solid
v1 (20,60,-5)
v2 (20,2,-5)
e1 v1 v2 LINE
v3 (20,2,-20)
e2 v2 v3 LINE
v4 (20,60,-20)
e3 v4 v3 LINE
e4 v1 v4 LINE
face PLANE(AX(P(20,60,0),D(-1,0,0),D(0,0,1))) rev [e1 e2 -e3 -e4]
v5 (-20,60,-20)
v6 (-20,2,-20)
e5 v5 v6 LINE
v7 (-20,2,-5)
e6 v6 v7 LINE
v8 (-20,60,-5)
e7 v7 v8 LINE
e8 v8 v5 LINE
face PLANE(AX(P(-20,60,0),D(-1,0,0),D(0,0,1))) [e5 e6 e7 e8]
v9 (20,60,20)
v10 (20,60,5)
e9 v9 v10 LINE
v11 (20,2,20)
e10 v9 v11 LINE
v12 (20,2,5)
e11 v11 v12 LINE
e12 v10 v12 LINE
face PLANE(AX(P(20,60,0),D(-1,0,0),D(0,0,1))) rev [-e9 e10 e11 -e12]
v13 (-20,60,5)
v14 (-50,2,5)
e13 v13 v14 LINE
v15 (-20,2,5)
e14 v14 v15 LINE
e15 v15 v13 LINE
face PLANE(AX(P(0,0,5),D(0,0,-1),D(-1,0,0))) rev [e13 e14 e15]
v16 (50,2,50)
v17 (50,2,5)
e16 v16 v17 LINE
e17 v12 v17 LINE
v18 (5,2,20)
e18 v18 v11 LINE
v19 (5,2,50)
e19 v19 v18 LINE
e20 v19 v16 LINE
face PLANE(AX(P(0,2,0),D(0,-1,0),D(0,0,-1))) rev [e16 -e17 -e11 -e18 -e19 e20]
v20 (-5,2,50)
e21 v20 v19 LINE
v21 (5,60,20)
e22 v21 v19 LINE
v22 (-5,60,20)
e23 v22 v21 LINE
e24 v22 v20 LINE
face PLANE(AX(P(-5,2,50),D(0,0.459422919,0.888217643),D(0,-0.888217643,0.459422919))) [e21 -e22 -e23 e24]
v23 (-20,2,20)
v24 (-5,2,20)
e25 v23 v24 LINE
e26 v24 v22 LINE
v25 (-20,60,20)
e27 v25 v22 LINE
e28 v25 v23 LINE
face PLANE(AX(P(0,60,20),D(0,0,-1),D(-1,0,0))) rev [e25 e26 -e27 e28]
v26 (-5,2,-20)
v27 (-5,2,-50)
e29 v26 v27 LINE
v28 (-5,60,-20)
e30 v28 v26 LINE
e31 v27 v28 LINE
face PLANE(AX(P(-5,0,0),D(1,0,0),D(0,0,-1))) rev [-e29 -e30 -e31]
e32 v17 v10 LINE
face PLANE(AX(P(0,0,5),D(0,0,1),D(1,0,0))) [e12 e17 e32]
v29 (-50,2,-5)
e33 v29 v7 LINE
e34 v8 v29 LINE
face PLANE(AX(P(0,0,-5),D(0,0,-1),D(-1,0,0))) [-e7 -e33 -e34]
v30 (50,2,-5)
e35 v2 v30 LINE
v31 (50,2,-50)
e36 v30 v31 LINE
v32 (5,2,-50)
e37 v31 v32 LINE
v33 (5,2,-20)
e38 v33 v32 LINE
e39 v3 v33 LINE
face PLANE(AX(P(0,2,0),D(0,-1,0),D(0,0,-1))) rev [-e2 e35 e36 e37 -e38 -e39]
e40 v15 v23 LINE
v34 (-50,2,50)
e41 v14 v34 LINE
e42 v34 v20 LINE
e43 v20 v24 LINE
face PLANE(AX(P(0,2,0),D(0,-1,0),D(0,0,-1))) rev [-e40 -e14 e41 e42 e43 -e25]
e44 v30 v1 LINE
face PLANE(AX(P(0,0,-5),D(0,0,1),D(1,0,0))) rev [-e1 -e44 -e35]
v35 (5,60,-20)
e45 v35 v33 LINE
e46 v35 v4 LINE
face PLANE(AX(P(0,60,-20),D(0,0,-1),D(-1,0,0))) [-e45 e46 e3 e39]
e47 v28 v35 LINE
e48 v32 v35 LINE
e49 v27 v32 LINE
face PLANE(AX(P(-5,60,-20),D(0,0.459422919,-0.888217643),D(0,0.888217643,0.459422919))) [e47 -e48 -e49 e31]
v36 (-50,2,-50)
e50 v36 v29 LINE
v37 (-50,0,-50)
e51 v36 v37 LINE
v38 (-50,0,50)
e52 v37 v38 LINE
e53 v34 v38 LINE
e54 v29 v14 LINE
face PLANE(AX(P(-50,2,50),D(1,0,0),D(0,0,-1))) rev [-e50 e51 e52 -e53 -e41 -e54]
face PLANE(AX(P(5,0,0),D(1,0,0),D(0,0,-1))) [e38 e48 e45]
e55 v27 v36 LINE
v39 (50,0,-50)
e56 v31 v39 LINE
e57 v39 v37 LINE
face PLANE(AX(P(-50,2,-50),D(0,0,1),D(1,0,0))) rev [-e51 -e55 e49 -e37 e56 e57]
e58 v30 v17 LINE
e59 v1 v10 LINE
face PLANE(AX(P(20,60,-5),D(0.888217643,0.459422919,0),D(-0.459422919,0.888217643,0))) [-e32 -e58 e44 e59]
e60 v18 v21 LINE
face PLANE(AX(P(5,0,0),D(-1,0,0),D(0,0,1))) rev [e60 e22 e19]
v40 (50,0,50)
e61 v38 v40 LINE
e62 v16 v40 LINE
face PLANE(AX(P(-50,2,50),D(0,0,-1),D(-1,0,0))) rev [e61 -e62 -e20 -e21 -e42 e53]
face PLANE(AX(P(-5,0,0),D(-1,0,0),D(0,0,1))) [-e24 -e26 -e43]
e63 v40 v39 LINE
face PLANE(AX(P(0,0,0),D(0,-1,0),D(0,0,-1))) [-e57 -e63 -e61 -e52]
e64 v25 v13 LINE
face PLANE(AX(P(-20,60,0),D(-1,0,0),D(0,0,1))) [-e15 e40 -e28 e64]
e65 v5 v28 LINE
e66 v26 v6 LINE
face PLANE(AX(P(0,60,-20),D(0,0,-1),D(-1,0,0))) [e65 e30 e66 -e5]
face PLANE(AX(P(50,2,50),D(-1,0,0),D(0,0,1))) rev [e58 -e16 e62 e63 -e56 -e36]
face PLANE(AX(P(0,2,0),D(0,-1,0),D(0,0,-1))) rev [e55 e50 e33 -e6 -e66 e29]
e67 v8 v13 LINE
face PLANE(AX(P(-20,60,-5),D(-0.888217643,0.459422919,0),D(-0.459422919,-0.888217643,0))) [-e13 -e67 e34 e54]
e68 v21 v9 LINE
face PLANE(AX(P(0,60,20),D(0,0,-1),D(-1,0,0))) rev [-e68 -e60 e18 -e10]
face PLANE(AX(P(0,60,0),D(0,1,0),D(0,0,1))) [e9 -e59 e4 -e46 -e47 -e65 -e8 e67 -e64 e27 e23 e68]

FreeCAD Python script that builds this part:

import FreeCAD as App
import Part
import Sketcher
Q = App.Units.Quantity


def add_polygon(sketch, points):
    """Adds a closed chain of lines whose ends are joined by coincident constraints."""
    first, n = sketch.GeometryCount, len(points)
    for a, b in zip(points, points[1:] + points[:1]):
        sketch.addGeometry(Part.LineSegment(App.Vector(*a, 0), App.Vector(*b, 0)), False)
    for i in range(n):
        sketch.addConstraint(Sketcher.Constraint("Coincident", first + i, 2, first + (i + 1) % n, 1))

doc = App.newDocument("Part")
body = doc.addObject("PartDesign::Body", "Body")

# Sketch on XZ plane
sketch1 = doc.addObject("Sketcher::SketchObject", "Sketch")
body.addObject(sketch1)
sketch1.AttachmentSupport = (doc.XZ_Plane, [""])
sketch1.MapMode = "FlatFace"
add_polygon(sketch1, [(-50, -50), (-50, 50), (50, 50), (50, -50)])  # lines 0-3
add_polygon(sketch1, [(20, 20), (-20, 20), (-20, -20), (20, -20)])  # lines 4-7
sketch1.addConstraint([
    Sketcher.Constraint("Vertical", 0),
    Sketcher.Constraint("Horizontal", 1),
    Sketcher.Constraint("Vertical", 2),
    Sketcher.Constraint("Horizontal", 3),
    Sketcher.Constraint("Horizontal", 4),
    Sketcher.Constraint("Vertical", 5),
    Sketcher.Constraint("Horizontal", 6),
    Sketcher.Constraint("Vertical", 7),
    Sketcher.Constraint("Symmetric", 0, 2, 2, 2, -1, 1),
    Sketcher.Constraint("Symmetric", 4, 2, 6, 2, -1, 1),
    Sketcher.Constraint("Equal", 3, 0),
    Sketcher.Constraint("Equal", 6, 5),
    Sketcher.Constraint("DistanceX", 1, 1, 1, 2, Q("100 mm")),
    Sketcher.Constraint("DistanceX", 4, 2, 4, 1, Q("40 mm")),
])
pad1 = doc.addObject("PartDesign::Pad", "Pad")
body.addObject(pad1)
pad1.Profile = sketch1
pad1.Length = 2
pad1.Reversed = True

# Sketch on XZ plane
sketch2 = doc.addObject("Sketcher::SketchObject", "Sketch001")
body.addObject(sketch2)
sketch2.AttachmentSupport = (doc.XZ_Plane, [""])
sketch2.MapMode = "FlatFace"
add_polygon(sketch2, [(-20, -20), (-20, 20), (20, 20), (20, -20)])  # lines 0-3
sketch2.addConstraint([
    Sketcher.Constraint("Vertical", 0),
    Sketcher.Constraint("Horizontal", 1),
    Sketcher.Constraint("Vertical", 2),
    Sketcher.Constraint("Horizontal", 3),
    Sketcher.Constraint("Symmetric", 0, 2, 2, 2, -1, 1),
    Sketcher.Constraint("Equal", 3, 0),
    Sketcher.Constraint("DistanceX", 1, 1, 1, 2, Q("40 mm")),
])
pad2 = doc.addObject("PartDesign::Pad", "Pad001")
body.addObject(pad2)
pad2.Profile = sketch2
pad2.Length = 60
pad2.Reversed = True

# Sketch on YZ plane
sketch3 = doc.addObject("Sketcher::SketchObject", "Sketch002")
body.addObject(sketch3)
sketch3.AttachmentSupport = (doc.YZ_Plane, [""])
sketch3.MapMode = "FlatFace"
add_polygon(sketch3, [(2, -50), (60, -20), (2, -20)])  # lines 0-2
add_polygon(sketch3, [(2, 50), (2, 20), (60, 20)])  # lines 3-5
sketch3.addConstraint([
    Sketcher.Constraint("Horizontal", 1),
    Sketcher.Constraint("Vertical", 2),
    Sketcher.Constraint("Vertical", 3),
    Sketcher.Constraint("Horizontal", 4),
    Sketcher.Constraint("Symmetric", 1, 2, 3, 2, -1),
    Sketcher.Constraint("Vertical", 0, 2, 4, 2),
    Sketcher.Constraint("Equal", 2, 3),
    Sketcher.Constraint("DistanceX", 1, 2, 1, 1, Q("58 mm")),
    Sketcher.Constraint("DistanceY", 2, 2, 2, 1, Q("30 mm")),
    Sketcher.Constraint("DistanceX", -1, 1, 0, 2, Q("60 mm")),
    Sketcher.Constraint("DistanceY", 0, 2, -1, 1, Q("20 mm")),
])
pad3 = doc.addObject("PartDesign::Pad", "Pad002")
body.addObject(pad3)
pad3.Profile = sketch3
pad3.Type = "TwoLengths"
pad3.Length = 5
pad3.Length2 = 5

# Sketch on XY plane
sketch4 = doc.addObject("Sketcher::SketchObject", "Sketch003")
body.addObject(sketch4)
sketch4.AttachmentSupport = (doc.XY_Plane, [""])
sketch4.MapMode = "FlatFace"
add_polygon(sketch4, [(50, 2), (20, 60), (20, 2)])  # lines 0-2
add_polygon(sketch4, [(-20, 60), (-50, 2), (-20, 2)])  # lines 3-5
sketch4.addConstraint([
    Sketcher.Constraint("Vertical", 1),
    Sketcher.Constraint("Horizontal", 2),
    Sketcher.Constraint("Horizontal", 4),
    Sketcher.Constraint("Vertical", 5),
    Sketcher.Constraint("Symmetric", 2, 2, 3, 2, -2),
    Sketcher.Constraint("Symmetric", 0, 2, 5, 2, -2),
    Sketcher.Constraint("DistanceX", 2, 1, 2, 2, Q("30 mm")),
    Sketcher.Constraint("DistanceY", 1, 2, 1, 1, Q("58 mm")),
    Sketcher.Constraint("DistanceX", -1, 1, 0, 2, Q("20 mm")),
    Sketcher.Constraint("DistanceY", -1, 1, 0, 2, Q("60 mm")),
])
pad4 = doc.addObject("PartDesign::Pad", "Pad003")
body.addObject(pad4)
pad4.Profile = sketch4
pad4.Type = "TwoLengths"
pad4.Length = 5
pad4.Length2 = 5

doc.recompute()
